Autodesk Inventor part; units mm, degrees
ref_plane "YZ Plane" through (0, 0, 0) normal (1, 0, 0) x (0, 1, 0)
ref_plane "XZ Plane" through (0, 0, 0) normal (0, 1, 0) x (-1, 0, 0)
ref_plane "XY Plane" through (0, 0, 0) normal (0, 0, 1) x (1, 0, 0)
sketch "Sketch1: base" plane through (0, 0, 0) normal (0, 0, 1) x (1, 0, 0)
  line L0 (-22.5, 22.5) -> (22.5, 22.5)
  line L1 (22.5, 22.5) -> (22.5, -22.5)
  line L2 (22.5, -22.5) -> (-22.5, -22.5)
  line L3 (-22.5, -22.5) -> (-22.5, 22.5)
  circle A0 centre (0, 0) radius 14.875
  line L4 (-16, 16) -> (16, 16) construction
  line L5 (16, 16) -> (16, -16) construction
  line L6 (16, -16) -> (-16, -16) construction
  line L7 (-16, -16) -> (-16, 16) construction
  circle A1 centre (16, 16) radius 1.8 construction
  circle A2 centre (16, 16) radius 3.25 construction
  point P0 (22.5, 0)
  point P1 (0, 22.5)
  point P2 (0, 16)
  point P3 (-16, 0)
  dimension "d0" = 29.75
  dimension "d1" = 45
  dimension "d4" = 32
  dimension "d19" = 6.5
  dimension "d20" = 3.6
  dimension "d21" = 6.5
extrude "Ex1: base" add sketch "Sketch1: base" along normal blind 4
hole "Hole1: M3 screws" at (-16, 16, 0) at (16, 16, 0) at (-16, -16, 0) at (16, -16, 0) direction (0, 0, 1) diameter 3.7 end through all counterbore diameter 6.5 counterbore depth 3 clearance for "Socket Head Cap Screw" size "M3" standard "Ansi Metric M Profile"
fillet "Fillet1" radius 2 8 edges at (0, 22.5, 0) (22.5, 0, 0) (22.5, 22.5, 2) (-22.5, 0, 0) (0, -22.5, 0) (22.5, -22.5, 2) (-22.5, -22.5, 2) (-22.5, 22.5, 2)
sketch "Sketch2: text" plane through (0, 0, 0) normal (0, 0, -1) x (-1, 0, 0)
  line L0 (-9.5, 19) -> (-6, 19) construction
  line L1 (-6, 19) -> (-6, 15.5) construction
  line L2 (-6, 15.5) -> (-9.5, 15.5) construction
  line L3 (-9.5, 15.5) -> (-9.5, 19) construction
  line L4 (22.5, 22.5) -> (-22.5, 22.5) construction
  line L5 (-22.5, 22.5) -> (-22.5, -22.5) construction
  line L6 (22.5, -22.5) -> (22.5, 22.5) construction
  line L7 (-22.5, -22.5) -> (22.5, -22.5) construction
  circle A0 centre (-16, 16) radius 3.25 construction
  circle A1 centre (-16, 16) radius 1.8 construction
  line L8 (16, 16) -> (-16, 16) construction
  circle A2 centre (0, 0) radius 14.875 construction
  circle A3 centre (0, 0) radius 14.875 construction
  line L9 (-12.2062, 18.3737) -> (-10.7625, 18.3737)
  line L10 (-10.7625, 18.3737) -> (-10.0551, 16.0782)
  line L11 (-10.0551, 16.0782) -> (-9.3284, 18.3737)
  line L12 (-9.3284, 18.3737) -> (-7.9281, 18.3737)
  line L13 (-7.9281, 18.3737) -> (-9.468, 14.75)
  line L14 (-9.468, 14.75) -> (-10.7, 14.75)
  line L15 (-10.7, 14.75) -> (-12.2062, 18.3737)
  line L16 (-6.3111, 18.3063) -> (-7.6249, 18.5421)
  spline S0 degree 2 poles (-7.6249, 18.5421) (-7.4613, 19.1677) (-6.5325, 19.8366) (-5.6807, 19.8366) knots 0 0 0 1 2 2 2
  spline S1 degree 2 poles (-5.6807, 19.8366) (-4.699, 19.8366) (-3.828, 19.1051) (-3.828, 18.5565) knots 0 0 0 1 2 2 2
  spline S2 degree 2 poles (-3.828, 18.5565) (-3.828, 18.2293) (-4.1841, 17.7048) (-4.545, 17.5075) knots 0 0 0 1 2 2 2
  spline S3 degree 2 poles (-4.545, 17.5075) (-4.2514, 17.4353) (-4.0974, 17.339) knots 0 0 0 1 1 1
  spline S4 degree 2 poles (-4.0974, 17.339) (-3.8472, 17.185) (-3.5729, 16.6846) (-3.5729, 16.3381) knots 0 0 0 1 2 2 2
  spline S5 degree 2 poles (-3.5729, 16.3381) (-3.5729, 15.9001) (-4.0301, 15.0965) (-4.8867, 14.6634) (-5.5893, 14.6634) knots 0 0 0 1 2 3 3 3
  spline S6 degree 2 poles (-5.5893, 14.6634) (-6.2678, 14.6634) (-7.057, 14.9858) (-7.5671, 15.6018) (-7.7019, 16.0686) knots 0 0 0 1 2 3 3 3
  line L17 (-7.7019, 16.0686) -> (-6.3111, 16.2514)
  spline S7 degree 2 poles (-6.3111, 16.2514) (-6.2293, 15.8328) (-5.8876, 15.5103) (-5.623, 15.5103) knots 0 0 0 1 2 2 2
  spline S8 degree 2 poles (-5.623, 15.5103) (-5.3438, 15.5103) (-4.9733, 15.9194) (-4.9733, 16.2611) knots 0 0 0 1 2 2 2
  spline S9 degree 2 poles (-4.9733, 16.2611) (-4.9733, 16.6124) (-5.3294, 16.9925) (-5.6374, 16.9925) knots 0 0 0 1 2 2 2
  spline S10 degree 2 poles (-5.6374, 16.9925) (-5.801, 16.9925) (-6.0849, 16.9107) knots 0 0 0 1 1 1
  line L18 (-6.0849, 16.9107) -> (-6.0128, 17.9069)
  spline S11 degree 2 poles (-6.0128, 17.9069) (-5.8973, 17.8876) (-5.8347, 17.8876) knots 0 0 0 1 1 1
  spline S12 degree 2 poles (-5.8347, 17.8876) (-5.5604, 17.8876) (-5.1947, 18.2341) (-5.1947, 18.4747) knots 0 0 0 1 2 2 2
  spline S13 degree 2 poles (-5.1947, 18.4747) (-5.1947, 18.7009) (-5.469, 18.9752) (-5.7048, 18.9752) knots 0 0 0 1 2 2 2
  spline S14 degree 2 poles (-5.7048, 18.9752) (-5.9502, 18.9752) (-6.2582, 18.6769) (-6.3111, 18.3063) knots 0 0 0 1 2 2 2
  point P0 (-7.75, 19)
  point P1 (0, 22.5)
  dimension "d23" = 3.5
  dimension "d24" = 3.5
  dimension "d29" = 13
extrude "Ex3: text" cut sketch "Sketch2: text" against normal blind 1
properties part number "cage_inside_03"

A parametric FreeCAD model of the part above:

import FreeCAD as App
import Part
import Sketcher
Q = App.Units.Quantity


def edges_at(feature, points):
    """Names of the edges that pass closest to the given points."""
    edges = feature.Shape.Edges
    near = lambda p: min(range(len(edges)), key=lambda i: edges[i].distToShape(Part.Vertex(*p))[0])
    return sorted({f"Edge{near(p) + 1}" for p in points})

doc = App.newDocument("Part")
body = doc.addObject("PartDesign::Body", "Body")

# Sketch on XY plane
sketch1 = doc.addObject("Sketcher::SketchObject", "Sketch")
body.addObject(sketch1)
sketch1.AttachmentSupport = (doc.XY_Plane, [""])
sketch1.MapMode = "FlatFace"
sketch1.addGeometry([
    Part.LineSegment(App.Vector(22, 22, 0), App.Vector(-22, 22, 0)),  # 0
    Part.LineSegment(App.Vector(-22, 22, 0), App.Vector(-22, -22, 0)),  # 1
    Part.LineSegment(App.Vector(-22, -22, 0), App.Vector(22, -22, 0)),  # 2
    Part.LineSegment(App.Vector(22, -22, 0), App.Vector(22, 22, 0)),  # 3
    Part.Circle(App.Vector(0, 0, 0), App.Vector(0, 0, 1), 15),  # 4
], False)
sketch1.addConstraint([
    Sketcher.Constraint("Coincident", 0, 2, 1, 1),
    Sketcher.Constraint("Coincident", 1, 2, 2, 1),
    Sketcher.Constraint("Coincident", 2, 2, 3, 1),
    Sketcher.Constraint("Coincident", 3, 2, 0, 1),
    Sketcher.Constraint("Horizontal", 0),
    Sketcher.Constraint("Vertical", 1),
    Sketcher.Constraint("Horizontal", 2),
    Sketcher.Constraint("Vertical", 3),
    Sketcher.Constraint("Coincident", 4, 3, -1, 1),
    Sketcher.Constraint("Symmetric", 0, 2, 2, 2, -1, 1),
    Sketcher.Constraint("Equal", 2, 1),
    Sketcher.Constraint("Diameter", 4, 29.75),
    Sketcher.Constraint("DistanceX", 0, 2, 0, 1, 45.0),
])
pad1 = doc.addObject("PartDesign::Pad", "Pad")
body.addObject(pad1)
pad1.Profile = sketch1
pad1.Length = 4

# Sketch on XY plane
sketch2 = doc.addObject("Sketcher::SketchObject", "Sketch001")
body.addObject(sketch2)
sketch2.AttachmentSupport = (doc.XY_Plane, [""])
sketch2.MapMode = "FlatFace"
sketch2.addGeometry([
    Part.Circle(App.Vector(-16, 16, 0), App.Vector(0, 0, 1), 1.9),
    Part.Circle(App.Vector(16, 16, 0), App.Vector(0, 0, 1), 1.9),
    Part.Circle(App.Vector(-16, -16, 0), App.Vector(0, 0, 1), 1.9),
    Part.Circle(App.Vector(16, -16, 0), App.Vector(0, 0, 1), 1.9),
], False)
sketch2.addConstraint([
    Sketcher.Constraint("Equal", 0, 1),
    Sketcher.Constraint("Equal", 1, 2),
    Sketcher.Constraint("Equal", 2, 3),
    Sketcher.Constraint("Symmetric", 1, 3, 2, 3, -1, 1),
    Sketcher.Constraint("Symmetric", 0, 3, 3, 3, -1, 1),
    Sketcher.Constraint("Symmetric", 0, 3, 1, 3, -2),
    Sketcher.Constraint("Diameter", 0, 3.7),
    Sketcher.Constraint("DistanceX", 0, 3, -1, 1, 16.0),
    Sketcher.Constraint("DistanceY", -1, 1, 0, 3, 16.0),
])
doc.recompute()
hole = doc.addObject("PartDesign::Hole", "Hole")
body.addObject(hole)
hole.Profile = sketch2
hole.ThreadType = "None"
hole.Diameter = 3.7
hole.DepthType = "ThroughAll"
hole.HoleCutType = "Counterbore"
hole.HoleCutDiameter = 6.5
hole.HoleCutDepth = 3
hole.Reversed = True
doc.recompute()

fillet = doc.addObject("PartDesign::Fillet", "Fillet")
body.addObject(fillet)
fillet.Base = (hole, edges_at(hole, [
    (0, 22.5, 0),
    (22.5, 0, 0),
    (22.5, 22.5, 2),
    (-22.5, 0, 0),
    (0, -22.5, 0),
    (22.5, -22.5, 2),
    (-22.5, -22.5, 2),
    (-22.5, 22.5, 2),
]))
fillet.Radius = 2

# Sketch on XY plane
sketch3 = doc.addObject("Sketcher::SketchObject", "Sketch002")
body.addObject(sketch3)
sketch3.AttachmentSupport = (doc.XY_Plane, [""])
sketch3.MapMode = "FlatFace"
sketch3.addGeometry([
    Part.LineSegment(App.Vector(10.7625, 18.3737, 0), App.Vector(12.2062, 18.3737, 0)),  # 0
    Part.LineSegment(App.Vector(12.2062, 18.3737, 0), App.Vector(10.7, 14.75, 0)),  # 1
    Part.LineSegment(App.Vector(10.7, 14.75, 0), App.Vector(9.468, 14.75, 0)),  # 2
    Part.LineSegment(App.Vector(9.468, 14.75, 0), App.Vector(7.9281, 18.3737, 0)),  # 3
    Part.LineSegment(App.Vector(7.9281, 18.3737, 0), App.Vector(9.3284, 18.3737, 0)),  # 4
    Part.LineSegment(App.Vector(9.3284, 18.3737, 0), App.Vector(10.0551, 16.0782, 0)),  # 5
    Part.LineSegment(App.Vector(10.0551, 16.0782, 0), App.Vector(10.7625, 18.3737, 0)),  # 6
    Part.LineSegment(App.Vector(7.6249, 18.5421, 0), App.Vector(6.3111, 18.3063, 0)),  # 7
    Part.BSplineCurve([App.Vector(5.7048, 18.9752, 0), App.Vector(5.9502, 18.9752, 0), App.Vector(6.2582, 18.6769, 0), App.Vector(6.3111, 18.3063, 0)], [3, 1, 3], [0, 1, 2], False, 2, [1, 1, 1, 1], False),  # 8
    Part.BSplineCurve([App.Vector(5.1947, 18.4747, 0), App.Vector(5.1947, 18.7009, 0), App.Vector(5.469, 18.9752, 0), App.Vector(5.7048, 18.9752, 0)], [3, 1, 3], [0, 1, 2], False, 2, [1, 1, 1, 1], False),  # 9
    Part.BSplineCurve([App.Vector(5.8347, 17.8876, 0), App.Vector(5.5604, 17.8876, 0), App.Vector(5.1947, 18.2341, 0), App.Vector(5.1947, 18.4747, 0)], [3, 1, 3], [0, 1, 2], False, 2, [1, 1, 1, 1], False),  # 10
    Part.BSplineCurve([App.Vector(6.0128, 17.9069, 0), App.Vector(5.8973, 17.8876, 0), App.Vector(5.8347, 17.8876, 0)], [3, 3], [0, 1], False, 2, [1, 1, 1], False),  # 11
    Part.LineSegment(App.Vector(6.0128, 17.9069, 0), App.Vector(6.0849, 16.9107, 0)),  # 12
    Part.BSplineCurve([App.Vector(5.6374, 16.9925, 0), App.Vector(5.801, 16.9925, 0), App.Vector(6.0849, 16.9107, 0)], [3, 3], [0, 1], False, 2, [1, 1, 1], False),  # 13
    Part.BSplineCurve([App.Vector(4.9733, 16.2611, 0), App.Vector(4.9733, 16.6124, 0), App.Vector(5.3294, 16.9925, 0), App.Vector(5.6374, 16.9925, 0)], [3, 1, 3], [0, 1, 2], False, 2, [1, 1, 1, 1], False),  # 14
    Part.BSplineCurve([App.Vector(5.623, 15.5103, 0), App.Vector(5.3438, 15.5103, 0), App.Vector(4.9733, 15.9194, 0), App.Vector(4.9733, 16.2611, 0)], [3, 1, 3], [0, 1, 2], False, 2, [1, 1, 1, 1], False),  # 15
    Part.BSplineCurve([App.Vector(6.3111, 16.2514, 0), App.Vector(6.2293, 15.8328, 0), App.Vector(5.8876, 15.5103, 0), App.Vector(5.623, 15.5103, 0)], [3, 1, 3], [0, 1, 2], False, 2, [1, 1, 1, 1], False),  # 16
    Part.LineSegment(App.Vector(6.3111, 16.2514, 0), App.Vector(7.7019, 16.0686, 0)),  # 17
    Part.BSplineCurve([App.Vector(5.5893, 14.6634, 0), App.Vector(6.2678, 14.6634, 0), App.Vector(7.057, 14.9858, 0), App.Vector(7.5671, 15.6018, 0), App.Vector(7.7019, 16.0686, 0)], [3, 1, 1, 3], [0, 1, 2, 3], False, 2, [1, 1, 1, 1, 1], False),  # 18
    Part.BSplineCurve([App.Vector(3.5729, 16.3381, 0), App.Vector(3.5729, 15.9001, 0), App.Vector(4.0301, 15.0965, 0), App.Vector(4.8867, 14.6634, 0), App.Vector(5.5893, 14.6634, 0)], [3, 1, 1, 3], [0, 1, 2, 3], False, 2, [1, 1, 1, 1, 1], False),  # 19
    Part.BSplineCurve([App.Vector(4.0974, 17.339, 0), App.Vector(3.8472, 17.185, 0), App.Vector(3.5729, 16.6846, 0), App.Vector(3.5729, 16.3381, 0)], [3, 1, 3], [0, 1, 2], False, 2, [1, 1, 1, 1], False),  # 20
    Part.BSplineCurve([App.Vector(4.545, 17.5075, 0), App.Vector(4.2514, 17.4353, 0), App.Vector(4.0974, 17.339, 0)], [3, 3], [0, 1], False, 2, [1, 1, 1], False),  # 21
    Part.BSplineCurve([App.Vector(3.828, 18.5565, 0), App.Vector(3.828, 18.2293, 0), App.Vector(4.1841, 17.7048, 0), App.Vector(4.545, 17.5075, 0)], [3, 1, 3], [0, 1, 2], False, 2, [1, 1, 1, 1], False),  # 22
    Part.BSplineCurve([App.Vector(5.6807, 19.8366, 0), App.Vector(4.699, 19.8366, 0), App.Vector(3.828, 19.1051, 0), App.Vector(3.828, 18.5565, 0)], [3, 1, 3], [0, 1, 2], False, 2, [1, 1, 1, 1], False),  # 23
    Part.BSplineCurve([App.Vector(7.6249, 18.5421, 0), App.Vector(7.4613, 19.1677, 0), App.Vector(6.5325, 19.8366, 0), App.Vector(5.6807, 19.8366, 0)], [3, 1, 3], [0, 1, 2], False, 2, [1, 1, 1, 1], False),  # 24
], False)
sketch3.addConstraint([
    Sketcher.Constraint("Block", 8),
    Sketcher.Constraint("Block", 9),
    Sketcher.Constraint("Block", 10),
    Sketcher.Constraint("Block", 11),
    Sketcher.Constraint("Block", 13),
    Sketcher.Constraint("Block", 14),
    Sketcher.Constraint("Block", 15),
    Sketcher.Constraint("Block", 16),
    Sketcher.Constraint("Block", 18),
    Sketcher.Constraint("Block", 19),
    Sketcher.Constraint("Block", 20),
    Sketcher.Constraint("Block", 21),
    Sketcher.Constraint("Block", 22),
    Sketcher.Constraint("Block", 23),
    Sketcher.Constraint("Block", 24),
    Sketcher.Constraint("Coincident", 0, 2, 1, 1),
    Sketcher.Constraint("Coincident", 1, 2, 2, 1),
    Sketcher.Constraint("Coincident", 2, 2, 3, 1),
    Sketcher.Constraint("Coincident", 3, 2, 4, 1),
    Sketcher.Constraint("Coincident", 4, 2, 5, 1),
    Sketcher.Constraint("Coincident", 5, 2, 6, 1),
    Sketcher.Constraint("Coincident", 6, 2, 0, 1),
    Sketcher.Constraint("Coincident", 7, 2, 8, 2),
    Sketcher.Constraint("Coincident", 11, 1, 12, 1),
    Sketcher.Constraint("Coincident", 12, 2, 13, 2),
    Sketcher.Constraint("Coincident", 16, 1, 17, 1),
    Sketcher.Constraint("Coincident", 17, 2, 18, 2),
    Sketcher.Constraint("Coincident", 24, 1, 7, 1),
    Sketcher.Constraint("Horizontal", 0),
    Sketcher.Constraint("Horizontal", 2),
    Sketcher.Constraint("Horizontal", 4),
    Sketcher.Constraint("Horizontal", 0, 2, 3, 2),
    Sketcher.Constraint("DistanceX", -1, 1, 1, 2, 10.7),
    Sketcher.Constraint("Angle", 1, Q("-112.5703 deg")),
    Sketcher.Constraint("DistanceX", 2, 2, 2, 1, 1.232),
    Sketcher.Constraint("DistanceY", -1, 1, 1, 2, 14.75),
    Sketcher.Constraint("DistanceX", 3, 2, 2, 2, 1.54),
    Sketcher.Constraint("Distance", 6, 2.402),
    Sketcher.Constraint("DistanceX", 0, 1, 0, 2, 1.4437),
    Sketcher.Constraint("DistanceX", 4, 1, 4, 2, 1.4003),
    Sketcher.Constraint("DistanceX", -1, 1, 5, 2, 10.055),
    Sketcher.Constraint("DistanceX", 3, 2, 0, 2, 4.278),
])
pocket1 = doc.addObject("PartDesign::Pocket", "Pocket")
body.addObject(pocket1)
pocket1.Profile = sketch3
pocket1.Length = 1
pocket1.Reversed = True

doc.recompute()
